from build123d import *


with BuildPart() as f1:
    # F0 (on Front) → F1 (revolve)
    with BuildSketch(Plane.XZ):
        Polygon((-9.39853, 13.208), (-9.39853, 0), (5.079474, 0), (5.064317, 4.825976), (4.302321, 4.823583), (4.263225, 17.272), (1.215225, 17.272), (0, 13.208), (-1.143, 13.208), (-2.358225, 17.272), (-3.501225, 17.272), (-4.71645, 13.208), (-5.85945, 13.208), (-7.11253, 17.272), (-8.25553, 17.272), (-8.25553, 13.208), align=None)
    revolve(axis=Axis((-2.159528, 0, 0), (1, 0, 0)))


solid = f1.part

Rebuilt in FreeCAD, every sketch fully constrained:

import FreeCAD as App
import Part
import Sketcher
Q = App.Units.Quantity


def add_polygon(sketch, points):
    """Adds a closed chain of lines whose ends are joined by coincident constraints."""
    first, n = sketch.GeometryCount, len(points)
    for a, b in zip(points, points[1:] + points[:1]):
        sketch.addGeometry(Part.LineSegment(App.Vector(*a, 0), App.Vector(*b, 0)), False)
    for i in range(n):
        sketch.addConstraint(Sketcher.Constraint("Coincident", first + i, 2, first + (i + 1) % n, 1))

doc = App.newDocument("Part")
body = doc.addObject("PartDesign::Body", "Body")

# Sketch on XZ plane
sketch1 = body.newObject("Sketcher::SketchObject", "Sketch")
sketch1.AttachmentSupport = (doc.getObject("XZ_Plane"), [""])
sketch1.MapMode = "FlatFace"
add_polygon(sketch1, [(-9.4, 13.2), (-9.4, 0), (5.1, 0), (5.1, 4.8), (4.3, 4.8), (4.3, 17.3), (1.2, 17.3), (0, 13.2), (-1.1, 13.2), (-2.4, 17.3), (-3.5, 17.3), (-4.7, 13.2), (-5.9, 13.2), (-7.1, 17.3), (-8.3, 17.3), (-8.3, 13.2)])  # lines 0-15
sketch1.addConstraint(Sketcher.Constraint("Vertical", 0))
sketch1.addConstraint(Sketcher.Constraint("Horizontal", 1))
sketch1.addConstraint(Sketcher.Constraint("Horizontal", 5))
sketch1.addConstraint(Sketcher.Constraint("Horizontal", 7))
sketch1.addConstraint(Sketcher.Constraint("Horizontal", 9))
sketch1.addConstraint(Sketcher.Constraint("Horizontal", 11))
sketch1.addConstraint(Sketcher.Constraint("Horizontal", 13))
sketch1.addConstraint(Sketcher.Constraint("Vertical", 14))
sketch1.addConstraint(Sketcher.Constraint("Horizontal", 15))
sketch1.addConstraint(Sketcher.Constraint("PointOnObject", 0, 2, -1))
sketch1.addConstraint(Sketcher.Constraint("PointOnObject", 6, 2, -2))
sketch1.addConstraint(Sketcher.Constraint("Perpendicular", 2, 3))
sketch1.addConstraint(Sketcher.Constraint("Perpendicular", 3, 4))
sketch1.addConstraint(Sketcher.Constraint("Parallel", 6, 10))
sketch1.addConstraint(Sketcher.Constraint("Horizontal", 5, 2, 8, 2))
sketch1.addConstraint(Sketcher.Constraint("Horizontal", 7, 2, 10, 2))
sketch1.addConstraint(Sketcher.Constraint("Horizontal", 9, 2, 12, 2))
sketch1.addConstraint(Sketcher.Constraint("Horizontal", 11, 2, 14, 2))
sketch1.addConstraint(Sketcher.Constraint("Equal", 7, 9))
sketch1.addConstraint(Sketcher.Constraint("Equal", 9, 11))
sketch1.addConstraint(Sketcher.Constraint("Equal", 11, 13))
sketch1.addConstraint(Sketcher.Constraint("Equal", 13, 15))
sketch1.addConstraint(Sketcher.Constraint("Equal", 6, 8))
sketch1.addConstraint(Sketcher.Constraint("DistanceX", 1, 1, 1, 2, Q("0.5700002 in")))
sketch1.addConstraint(Sketcher.Constraint("DistanceX", 5, 2, 5, 1, Q("0.12 in")))
sketch1.addConstraint(Sketcher.Constraint("DistanceY", 0, 2, 0, 1, Q("0.52 in")))
sketch1.addConstraint(Sketcher.Constraint("DistanceY", 14, 2, 14, 1, Q("0.16 in")))
sketch1.addConstraint(Sketcher.Constraint("Distance", 2, Q("0.19 in")))
sketch1.addConstraint(Sketcher.Constraint("Distance", 3, Q("0.03 in")))
sketch1.addConstraint(Sketcher.Constraint("DistanceX", 7, 2, 7, 1, Q("0.045 in")))
sketch1.addConstraint(Sketcher.Constraint("Distance", 6, Q("0.167 in")))
sketch1.addConstraint(Sketcher.Constraint("Distance", 12, 4.2528))
revolution = body.newObject("PartDesign::Revolution", "Revolution")
revolution.Profile = sketch1
revolution.ReferenceAxis = (sketch1, ["H_Axis"])
revolution.Angle = 360

doc.recompute()
